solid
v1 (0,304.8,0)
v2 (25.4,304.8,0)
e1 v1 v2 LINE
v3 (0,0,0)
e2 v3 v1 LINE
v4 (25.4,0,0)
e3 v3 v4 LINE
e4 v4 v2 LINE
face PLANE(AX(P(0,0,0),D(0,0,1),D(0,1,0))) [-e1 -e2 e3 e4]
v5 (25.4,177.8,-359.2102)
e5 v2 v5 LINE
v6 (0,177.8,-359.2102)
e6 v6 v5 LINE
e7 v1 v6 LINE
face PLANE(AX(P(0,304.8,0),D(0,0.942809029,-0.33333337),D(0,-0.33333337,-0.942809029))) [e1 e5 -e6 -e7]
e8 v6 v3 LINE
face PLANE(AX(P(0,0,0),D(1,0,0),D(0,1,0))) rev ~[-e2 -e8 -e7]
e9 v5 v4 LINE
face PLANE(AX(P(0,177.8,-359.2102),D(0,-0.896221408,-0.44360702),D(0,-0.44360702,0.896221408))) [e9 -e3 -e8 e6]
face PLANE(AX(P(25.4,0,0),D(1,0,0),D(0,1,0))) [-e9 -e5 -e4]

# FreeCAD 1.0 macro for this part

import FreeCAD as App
import Part
import Sketcher

V = App.Vector
Q = App.Units.Quantity

doc = App.newDocument("Part")
body = doc.addObject("PartDesign::Body", "Body")

# Sketch on YZ plane
sketch1 = body.newObject("Sketcher::SketchObject", "Sketch")
sketch1.AttachmentSupport = (doc.getObject("YZ_Plane"), [""])
sketch1.MapMode = "FlatFace"
sketch1.addGeometry(Part.LineSegment(V(305, 0, 0), V(0, 0, 0)), False)
sketch1.addGeometry(Part.LineSegment(V(0, 0, 0), V(178, -359, 0)), False)
sketch1.addGeometry(Part.LineSegment(V(178, -359, 0), V(305, 0, 0)), False)
sketch1.addConstraint(Sketcher.Constraint("Coincident", 0, 2, 1, 1))
sketch1.addConstraint(Sketcher.Constraint("Coincident", 1, 2, 2, 1))
sketch1.addConstraint(Sketcher.Constraint("Coincident", 2, 2, 0, 1))
sketch1.addConstraint(Sketcher.Constraint("Horizontal", 0))
sketch1.addConstraint(Sketcher.Constraint("Coincident", 0, 2, -1, 1))
sketch1.addConstraint(Sketcher.Constraint("DistanceX", 0, 2, 0, 1, Q("12 in")))
sketch1.addConstraint(Sketcher.Constraint("Distance", 2, Q("15 in")))
sketch1.addConstraint(Sketcher.Constraint("DistanceX", -1, 1, 1, 2, Q("7 in")))
pad1 = body.newObject("PartDesign::Pad", "Pad")
pad1.Profile = sketch1
pad1.Length = Q("1 in")

doc.recompute()
